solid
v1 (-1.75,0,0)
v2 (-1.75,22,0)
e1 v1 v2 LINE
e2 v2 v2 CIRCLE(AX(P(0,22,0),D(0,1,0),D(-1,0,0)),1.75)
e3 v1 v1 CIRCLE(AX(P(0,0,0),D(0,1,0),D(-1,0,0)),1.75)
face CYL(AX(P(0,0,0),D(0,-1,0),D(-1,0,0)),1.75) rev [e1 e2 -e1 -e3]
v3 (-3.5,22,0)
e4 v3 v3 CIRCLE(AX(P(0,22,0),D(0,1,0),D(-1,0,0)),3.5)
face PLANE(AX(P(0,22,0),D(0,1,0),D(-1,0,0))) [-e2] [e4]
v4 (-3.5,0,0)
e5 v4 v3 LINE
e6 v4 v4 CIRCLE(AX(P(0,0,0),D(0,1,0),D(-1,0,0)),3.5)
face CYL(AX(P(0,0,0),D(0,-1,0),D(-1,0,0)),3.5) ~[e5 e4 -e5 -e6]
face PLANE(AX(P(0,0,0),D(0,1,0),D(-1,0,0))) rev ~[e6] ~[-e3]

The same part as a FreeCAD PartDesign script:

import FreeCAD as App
import Part
import Sketcher
from FreeCAD import Vector

doc = App.newDocument("Part")
params = doc.addObject("Spreadsheet::Sheet", "Params")
for row, (alias, value) in enumerate([
    ("sketch1_diameter", "7 mm"),
    ("sketch1_diameter2", "3.5 mm"),
    ("pad1_length", "22 mm"),
], start=1):
    params.set(f"A{row}", alias)
    params.set(f"B{row}", "=" + value)
    params.setAlias(f"B{row}", alias)

body = doc.addObject("PartDesign::Body", "Body")

# Sketch on XZ plane
sketch1 = doc.addObject("Sketcher::SketchObject", "Sketch")
body.addObject(sketch1)
sketch1.AttachmentSupport = (doc.XZ_Plane, [""])
sketch1.MapMode = "FlatFace"
sketch1.addGeometry([
    Part.Circle(Vector(0, 0, 0), Vector(0, 0, 1), 3.5),
    Part.Circle(Vector(0, 0, 0), Vector(0, 0, 1), 1.8),
], False)
sketch1.addConstraint([
    Sketcher.Constraint("Coincident", 0, 3, -1, 1),
    Sketcher.Constraint("Coincident", 1, 3, -1, 1),
    Sketcher.Constraint("Diameter", 0, 7.0),
    Sketcher.Constraint("Diameter", 1, 3.5),
])
sketch1.setExpression("Constraints[2]", "Params.sketch1_diameter")
sketch1.setExpression("Constraints[3]", "Params.sketch1_diameter2")
pad1 = doc.addObject("PartDesign::Pad", "Pad")
body.addObject(pad1)
pad1.Profile = sketch1
pad1.setExpression("Length", "Params.pad1_length")
pad1.Reversed = True

doc.recompute()
